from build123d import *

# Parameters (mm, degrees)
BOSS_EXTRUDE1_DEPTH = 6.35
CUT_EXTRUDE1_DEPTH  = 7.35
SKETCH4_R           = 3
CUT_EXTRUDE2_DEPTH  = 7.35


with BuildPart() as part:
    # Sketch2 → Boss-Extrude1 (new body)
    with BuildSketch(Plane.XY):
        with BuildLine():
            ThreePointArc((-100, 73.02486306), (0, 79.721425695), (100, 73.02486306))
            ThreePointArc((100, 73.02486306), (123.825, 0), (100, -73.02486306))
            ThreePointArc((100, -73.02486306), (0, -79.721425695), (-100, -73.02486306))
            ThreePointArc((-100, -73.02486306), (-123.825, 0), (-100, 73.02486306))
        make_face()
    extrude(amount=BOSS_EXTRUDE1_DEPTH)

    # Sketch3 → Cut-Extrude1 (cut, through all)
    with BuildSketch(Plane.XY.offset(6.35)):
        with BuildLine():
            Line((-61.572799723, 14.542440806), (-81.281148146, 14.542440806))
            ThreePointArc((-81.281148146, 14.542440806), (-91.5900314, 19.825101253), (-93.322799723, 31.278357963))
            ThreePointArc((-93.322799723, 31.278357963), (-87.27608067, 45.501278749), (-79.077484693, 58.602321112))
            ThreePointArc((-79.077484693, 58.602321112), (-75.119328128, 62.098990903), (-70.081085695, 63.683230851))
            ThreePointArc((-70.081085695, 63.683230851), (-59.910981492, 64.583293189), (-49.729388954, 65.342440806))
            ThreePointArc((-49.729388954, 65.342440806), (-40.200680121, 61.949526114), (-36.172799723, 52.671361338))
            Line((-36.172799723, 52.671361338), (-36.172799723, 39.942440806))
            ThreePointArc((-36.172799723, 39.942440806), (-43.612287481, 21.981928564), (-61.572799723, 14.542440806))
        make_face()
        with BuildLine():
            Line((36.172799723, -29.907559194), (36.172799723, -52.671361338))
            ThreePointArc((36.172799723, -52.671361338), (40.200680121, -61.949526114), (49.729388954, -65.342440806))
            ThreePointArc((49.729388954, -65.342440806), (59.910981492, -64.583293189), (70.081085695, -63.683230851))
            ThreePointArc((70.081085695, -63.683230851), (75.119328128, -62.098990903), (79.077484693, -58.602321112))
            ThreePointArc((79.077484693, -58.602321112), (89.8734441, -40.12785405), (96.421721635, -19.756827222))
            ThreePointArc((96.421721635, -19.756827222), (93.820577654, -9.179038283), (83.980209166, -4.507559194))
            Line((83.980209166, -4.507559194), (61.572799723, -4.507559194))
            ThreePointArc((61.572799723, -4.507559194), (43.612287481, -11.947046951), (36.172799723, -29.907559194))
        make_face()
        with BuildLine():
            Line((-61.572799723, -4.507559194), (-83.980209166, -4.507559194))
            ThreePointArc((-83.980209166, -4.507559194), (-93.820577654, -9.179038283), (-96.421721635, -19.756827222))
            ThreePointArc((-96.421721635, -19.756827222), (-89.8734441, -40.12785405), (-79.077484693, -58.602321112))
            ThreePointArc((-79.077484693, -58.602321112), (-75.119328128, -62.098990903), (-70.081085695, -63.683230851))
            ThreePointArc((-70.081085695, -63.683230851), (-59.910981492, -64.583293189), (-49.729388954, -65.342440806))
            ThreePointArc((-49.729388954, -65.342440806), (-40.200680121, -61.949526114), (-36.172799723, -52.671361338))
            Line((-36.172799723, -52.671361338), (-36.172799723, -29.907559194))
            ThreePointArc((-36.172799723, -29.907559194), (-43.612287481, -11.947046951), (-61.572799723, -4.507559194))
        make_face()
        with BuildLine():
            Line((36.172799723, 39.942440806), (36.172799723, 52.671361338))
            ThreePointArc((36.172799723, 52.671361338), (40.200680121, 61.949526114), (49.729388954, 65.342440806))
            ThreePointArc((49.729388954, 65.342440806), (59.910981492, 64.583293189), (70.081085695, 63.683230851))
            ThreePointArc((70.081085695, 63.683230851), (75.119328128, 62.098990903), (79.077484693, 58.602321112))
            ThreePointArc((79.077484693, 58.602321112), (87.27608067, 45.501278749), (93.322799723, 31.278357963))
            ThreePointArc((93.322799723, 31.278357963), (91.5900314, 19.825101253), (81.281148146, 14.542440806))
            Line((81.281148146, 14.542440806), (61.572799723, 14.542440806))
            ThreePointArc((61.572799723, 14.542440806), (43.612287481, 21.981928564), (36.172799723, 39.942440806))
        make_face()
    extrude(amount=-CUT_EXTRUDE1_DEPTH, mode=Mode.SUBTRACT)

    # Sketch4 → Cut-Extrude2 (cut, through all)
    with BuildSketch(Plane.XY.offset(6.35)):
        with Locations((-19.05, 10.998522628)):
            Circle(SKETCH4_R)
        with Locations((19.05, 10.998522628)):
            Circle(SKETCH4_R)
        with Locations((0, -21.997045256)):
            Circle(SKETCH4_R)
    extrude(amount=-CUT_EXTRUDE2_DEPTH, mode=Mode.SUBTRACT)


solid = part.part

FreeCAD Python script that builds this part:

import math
import FreeCAD as App
import Part
import Sketcher
from FreeCAD import Vector
Q = App.Units.Quantity

doc = App.newDocument("Part")
body = doc.addObject("PartDesign::Body", "Body")

# Sketch on XY plane
sketch1 = body.newObject("Sketcher::SketchObject", "Sketch")
sketch1.AttachmentSupport = (doc.getObject("XY_Plane"), [""])
sketch1.MapMode = "FlatFace"
sketch1.addGeometry(Part.ArcOfCircle(Part.Circle(Vector(0, -670, 0), Vector(0, 0, 1), 750), math.radians(82.34), math.radians(97.66)), False)
sketch1.addGeometry(Part.ArcOfCircle(Part.Circle(Vector(0, 0, 0), Vector(0, 0, 1), 124), math.radians(144), math.radians(216)), False)
sketch1.addGeometry(Part.ArcOfCircle(Part.Circle(Vector(0, 670, 0), Vector(0, 0, 1), 750), math.radians(-97.66), math.radians(-82.34)), False)
sketch1.addGeometry(Part.ArcOfCircle(Part.Circle(Vector(0, 0, 0), Vector(0, 0, 1), 124), math.radians(-36), math.radians(36)), False)
sketch1.addConstraint(Sketcher.Constraint("Coincident", 0, 2, 1, 1))
sketch1.addConstraint(Sketcher.Constraint("Coincident", 1, 2, 2, 1))
sketch1.addConstraint(Sketcher.Constraint("Coincident", 2, 2, 3, 1))
sketch1.addConstraint(Sketcher.Constraint("Coincident", 3, 2, 0, 1))
sketch1.addConstraint(Sketcher.Constraint("Coincident", 1, 3, -1, 1))
sketch1.addConstraint(Sketcher.Constraint("Coincident", 3, 3, -1, 1))
sketch1.addConstraint(Sketcher.Constraint("Equal", 0, 2))
sketch1.addConstraint(Sketcher.Constraint("Equal", 1, 3))
sketch1.addConstraint(Sketcher.Constraint("Symmetric", 0, 3, 2, 3, -1, 1))
sketch1.addConstraint(Sketcher.Constraint("PointOnObject", 0, 3, -2))
sketch1.addConstraint(Sketcher.Constraint("Radius", 1, Q("4.875 in")))
sketch1.addConstraint(Sketcher.Constraint("Radius", 0, Q("750 mm")))
sketch1.addConstraint(Sketcher.Constraint("DistanceX", 1, 2, -1, 1, Q("100 mm")))
pad1 = body.newObject("PartDesign::Pad", "Pad")
pad1.Profile = sketch1
pad1.Length = Q("0.25 in")

# Sketch on XY plane
sketch2 = body.newObject("Sketcher::SketchObject", "Sketch001")
sketch2.AttachmentSupport = (doc.getObject("XY_Plane"), [""])
sketch2.MapMode = "FlatFace"
sketch2.AttachmentOffset = App.Placement(Vector(0, 0, 0.25 * 25.4), App.Rotation())
sketch2.addGeometry(Part.LineSegment(Vector(-81, 15, 0), Vector(-62, 15, 0)), False)
sketch2.addGeometry(Part.ArcOfCircle(Part.Circle(Vector(-62, 40, 0), Vector(0, 0, 1), 25), math.radians(-90), math.radians(0)), False)
sketch2.addGeometry(Part.LineSegment(Vector(-36, 40, 0), Vector(-36, 53, 0)), False)
sketch2.addGeometry(Part.ArcOfCircle(Part.Circle(Vector(-49, 53, 0), Vector(0, 0, 1), 13), math.radians(0), math.radians(94)), False)
sketch2.addGeometry(Part.ArcOfCircle(Part.Circle(Vector(0, -670, 0), Vector(0, 0, 1), 737), math.radians(93.87), math.radians(95.45)), False)
sketch2.addGeometry(Part.ArcOfCircle(Part.Circle(Vector(-69, 51, 0), Vector(0, 0, 1), 13), math.radians(95), math.radians(143)), False)
sketch2.addGeometry(Part.ArcOfCircle(Part.Circle(Vector(0, 0, 0), Vector(0, 0, 1), 98), math.radians(143.46), math.radians(161.47)), False)
sketch2.addGeometry(Part.ArcOfCircle(Part.Circle(Vector(-81, 27, 0), Vector(0, 0, 1), 13), math.radians(161), math.radians(270)), False)
sketch2.addGeometry(Part.LineSegment(Vector(36, -30, 0), Vector(36, -53, 0)), False)
sketch2.addGeometry(Part.ArcOfCircle(Part.Circle(Vector(49, -53, 0), Vector(0, 0, 1), 13), math.radians(180), math.radians(274)), False)
sketch2.addGeometry(Part.ArcOfCircle(Part.Circle(Vector(0, 670, 0), Vector(0, 0, 1), 737), math.radians(-86.13), math.radians(-84.55)), False)
sketch2.addGeometry(Part.ArcOfCircle(Part.Circle(Vector(69, -51, 0), Vector(0, 0, 1), 13), math.radians(-85), math.radians(-37)), False)
sketch2.addGeometry(Part.ArcOfCircle(Part.Circle(Vector(0, 0, 0), Vector(0, 0, 1), 98), math.radians(-37), math.radians(-12)), False)
sketch2.addGeometry(Part.ArcOfCircle(Part.Circle(Vector(84, -17, 0), Vector(0, 0, 1), 13), math.radians(-12), math.radians(90)), False)
sketch2.addGeometry(Part.LineSegment(Vector(84, -5, 0), Vector(62, -5, 0)), False)
sketch2.addGeometry(Part.ArcOfCircle(Part.Circle(Vector(62, -30, 0), Vector(0, 0, 1), 25), math.radians(90), math.radians(180)), False)
sketch2.addGeometry(Part.LineSegment(Vector(-62, -5, 0), Vector(-84, -5, 0)), False)
sketch2.addGeometry(Part.ArcOfCircle(Part.Circle(Vector(-84, -17, 0), Vector(0, 0, 1), 13), math.radians(90), math.radians(192)), False)
sketch2.addGeometry(Part.ArcOfCircle(Part.Circle(Vector(0, 0, 0), Vector(0, 0, 1), 98), math.radians(-168), math.radians(-143)), False)
sketch2.addGeometry(Part.ArcOfCircle(Part.Circle(Vector(-69, -51, 0), Vector(0, 0, 1), 13), math.radians(-143), math.radians(-95)), False)
sketch2.addGeometry(Part.ArcOfCircle(Part.Circle(Vector(0, 670, 0), Vector(0, 0, 1), 737), math.radians(-95.45), math.radians(-93.87)), False)
sketch2.addGeometry(Part.ArcOfCircle(Part.Circle(Vector(-49, -53, 0), Vector(0, 0, 1), 13), math.radians(-94), math.radians(0)), False)
sketch2.addGeometry(Part.LineSegment(Vector(-36, -53, 0), Vector(-36, -30, 0)), False)
sketch2.addGeometry(Part.ArcOfCircle(Part.Circle(Vector(-62, -30, 0), Vector(0, 0, 1), 25), math.radians(0), math.radians(90)), False)
sketch2.addGeometry(Part.LineSegment(Vector(36, 53, 0), Vector(36, 40, 0)), False)
sketch2.addGeometry(Part.ArcOfCircle(Part.Circle(Vector(62, 40, 0), Vector(0, 0, 1), 25), math.radians(180), math.radians(270)), False)
sketch2.addGeometry(Part.LineSegment(Vector(62, 15, 0), Vector(81, 15, 0)), False)
sketch2.addGeometry(Part.ArcOfCircle(Part.Circle(Vector(81, 27, 0), Vector(0, 0, 1), 13), math.radians(-90), math.radians(19)), False)
sketch2.addGeometry(Part.ArcOfCircle(Part.Circle(Vector(0, 0, 0), Vector(0, 0, 1), 98), math.radians(18.53), math.radians(36.54)), False)
sketch2.addGeometry(Part.ArcOfCircle(Part.Circle(Vector(69, 51, 0), Vector(0, 0, 1), 13), math.radians(37), math.radians(85)), False)
sketch2.addGeometry(Part.ArcOfCircle(Part.Circle(Vector(0, -670, 0), Vector(0, 0, 1), 737), math.radians(84.55), math.radians(86.13)), False)
sketch2.addGeometry(Part.ArcOfCircle(Part.Circle(Vector(49, 53, 0), Vector(0, 0, 1), 13), math.radians(86), math.radians(180)), False)
sketch2.addConstraint(Sketcher.Constraint("Tangent", 0, 2, 1, 1))
sketch2.addConstraint(Sketcher.Constraint("Tangent", 1, 2, 2, 1))
sketch2.addConstraint(Sketcher.Constraint("Tangent", 2, 2, 3, 1))
sketch2.addConstraint(Sketcher.Constraint("Tangent", 3, 2, 4, 1))
sketch2.addConstraint(Sketcher.Constraint("Tangent", 4, 2, 5, 1))
sketch2.addConstraint(Sketcher.Constraint("Tangent", 5, 2, 6, 1))
sketch2.addConstraint(Sketcher.Constraint("Tangent", 6, 2, 7, 1))
sketch2.addConstraint(Sketcher.Constraint("Tangent", 7, 2, 0, 1))
sketch2.addConstraint(Sketcher.Constraint("Tangent", 8, 2, 9, 1))
sketch2.addConstraint(Sketcher.Constraint("Tangent", 9, 2, 10, 1))
sketch2.addConstraint(Sketcher.Constraint("Tangent", 10, 2, 11, 1))
sketch2.addConstraint(Sketcher.Constraint("Tangent", 11, 2, 12, 1))
sketch2.addConstraint(Sketcher.Constraint("Tangent", 12, 2, 13, 1))
sketch2.addConstraint(Sketcher.Constraint("Tangent", 13, 2, 14, 1))
sketch2.addConstraint(Sketcher.Constraint("Tangent", 14, 2, 15, 1))
sketch2.addConstraint(Sketcher.Constraint("Tangent", 15, 2, 8, 1))
sketch2.addConstraint(Sketcher.Constraint("Tangent", 16, 2, 17, 1))
sketch2.addConstraint(Sketcher.Constraint("Tangent", 17, 2, 18, 1))
sketch2.addConstraint(Sketcher.Constraint("Tangent", 18, 2, 19, 1))
sketch2.addConstraint(Sketcher.Constraint("Tangent", 19, 2, 20, 1))
sketch2.addConstraint(Sketcher.Constraint("Tangent", 20, 2, 21, 1))
sketch2.addConstraint(Sketcher.Constraint("Tangent", 21, 2, 22, 1))
sketch2.addConstraint(Sketcher.Constraint("Tangent", 22, 2, 23, 1))
sketch2.addConstraint(Sketcher.Constraint("Tangent", 23, 2, 16, 1))
sketch2.addConstraint(Sketcher.Constraint("Tangent", 24, 2, 25, 1))
sketch2.addConstraint(Sketcher.Constraint("Tangent", 25, 2, 26, 1))
sketch2.addConstraint(Sketcher.Constraint("Tangent", 26, 2, 27, 1))
sketch2.addConstraint(Sketcher.Constraint("Tangent", 27, 2, 28, 1))
sketch2.addConstraint(Sketcher.Constraint("Tangent", 28, 2, 29, 1))
sketch2.addConstraint(Sketcher.Constraint("Tangent", 29, 2, 30, 1))
sketch2.addConstraint(Sketcher.Constraint("Tangent", 30, 2, 31, 1))
sketch2.addConstraint(Sketcher.Constraint("Tangent", 31, 2, 24, 1))
sketch2.addConstraint(Sketcher.Constraint("Horizontal", 0))
sketch2.addConstraint(Sketcher.Constraint("Vertical", 2))
sketch2.addConstraint(Sketcher.Constraint("Vertical", 8))
sketch2.addConstraint(Sketcher.Constraint("Horizontal", 14))
sketch2.addConstraint(Sketcher.Constraint("Horizontal", 16))
sketch2.addConstraint(Sketcher.Constraint("Vertical", 22))
sketch2.addConstraint(Sketcher.Constraint("Vertical", 24))
sketch2.addConstraint(Sketcher.Constraint("Horizontal", 26))
sketch2.addConstraint(Sketcher.Constraint("Coincident", 6, 3, -1, 1))
sketch2.addConstraint(Sketcher.Constraint("Coincident", 12, 3, -1, 1))
sketch2.addConstraint(Sketcher.Constraint("Coincident", 18, 3, -1, 1))
sketch2.addConstraint(Sketcher.Constraint("Coincident", 28, 3, -1, 1))
sketch2.addConstraint(Sketcher.Constraint("Coincident", 20, 3, 10, 3))
sketch2.addConstraint(Sketcher.Constraint("Coincident", 30, 3, 4, 3))
sketch2.addConstraint(Sketcher.Constraint("Equal", 3, 5))
sketch2.addConstraint(Sketcher.Constraint("Equal", 5, 7))
sketch2.addConstraint(Sketcher.Constraint("Equal", 7, 9))
sketch2.addConstraint(Sketcher.Constraint("Equal", 4, 10))
sketch2.addConstraint(Sketcher.Constraint("Equal", 9, 11))
sketch2.addConstraint(Sketcher.Constraint("Equal", 6, 12))
sketch2.addConstraint(Sketcher.Constraint("Equal", 11, 13))
sketch2.addConstraint(Sketcher.Constraint("Equal", 1, 15))
sketch2.addConstraint(Sketcher.Constraint("Equal", 13, 17))
sketch2.addConstraint(Sketcher.Constraint("Equal", 12, 18))
sketch2.addConstraint(Sketcher.Constraint("Equal", 17, 19))
sketch2.addConstraint(Sketcher.Constraint("Equal", 10, 20))
sketch2.addConstraint(Sketcher.Constraint("Equal", 19, 21))
sketch2.addConstraint(Sketcher.Constraint("Equal", 15, 23))
sketch2.addConstraint(Sketcher.Constraint("Equal", 23, 25))
sketch2.addConstraint(Sketcher.Constraint("Equal", 21, 27))
sketch2.addConstraint(Sketcher.Constraint("Equal", 18, 28))
sketch2.addConstraint(Sketcher.Constraint("Equal", 27, 29))
sketch2.addConstraint(Sketcher.Constraint("Equal", 20, 30))
sketch2.addConstraint(Sketcher.Constraint("Equal", 29, 31))
sketch2.addConstraint(Sketcher.Constraint("Symmetric", 3, 3, 9, 3, -1, 1))
sketch2.addConstraint(Sketcher.Constraint("Symmetric", 21, 3, 31, 3, -1, 1))
sketch2.addConstraint(Sketcher.Constraint("Symmetric", 9, 3, 21, 3, -2))
sketch2.addConstraint(Sketcher.Constraint("Horizontal", 13, 3, 17, 3))
sketch2.addConstraint(Sketcher.Constraint("Horizontal", 1, 3, 25, 3))
sketch2.addConstraint(Sketcher.Constraint("Radius", 1, Q("1 in")))
sketch2.addConstraint(Sketcher.Constraint("Radius", 3, Q("0.5 in")))
sketch2.addConstraint(Sketcher.Constraint("Radius", 6, Q("3.875 in")))
sketch2.addConstraint(Sketcher.Constraint("DistanceY", 1, 3, 3, 2, Q("1 in")))
sketch2.addConstraint(Sketcher.Constraint("DistanceY", 17, 3, 7, 3, Q("1.75 in")))
sketch2.addConstraint(Sketcher.Constraint("DistanceX", 6, 2, 1, 3, Q("1.25 in")))
sketch2.addConstraint(Sketcher.Constraint("Radius", 4, Q("737.299995 mm")))
sketch2.addConstraint(Sketcher.Constraint("DistanceX", 0, 1, 0, 2, Q("19.708348 mm")))
pocket1 = body.newObject("PartDesign::Pocket", "Pocket")
pocket1.Profile = sketch2
pocket1.Type = "ThroughAll"

# Sketch on XY plane
sketch3 = body.newObject("Sketcher::SketchObject", "Sketch002")
sketch3.AttachmentSupport = (doc.getObject("XY_Plane"), [""])
sketch3.MapMode = "FlatFace"
sketch3.AttachmentOffset = App.Placement(Vector(0, 0, 0.25 * 25.4), App.Rotation())
sketch3.addGeometry(Part.Circle(Vector(-19.1, 11, 0), Vector(0, 0, 1), 3), False)
sketch3.addGeometry(Part.Circle(Vector(19.1, 11, 0), Vector(0, 0, 1), 3), False)
sketch3.addGeometry(Part.Circle(Vector(0, -22, 0), Vector(0, 0, 1), 3), False)
sketch3.addConstraint(Sketcher.Constraint("Equal", 0, 1))
sketch3.addConstraint(Sketcher.Constraint("Equal", 1, 2))
sketch3.addConstraint(Sketcher.Constraint("Symmetric", 0, 3, 1, 3, -2))
sketch3.addConstraint(Sketcher.Constraint("PointOnObject", 2, 3, -2))
sketch3.addConstraint(Sketcher.Constraint("DistanceX", 0, 3, 1, 3, Q("1.5 in")))
sketch3.addConstraint(Sketcher.Constraint("Diameter", 0, Q("6 mm")))
sketch3.addConstraint(Sketcher.Constraint("DistanceY", -1, 1, 0, 3, Q("10.998523 mm")))
sketch3.addConstraint(Sketcher.Constraint("DistanceY", 2, 3, -1, 1, Q("21.997045 mm")))
pocket2 = body.newObject("PartDesign::Pocket", "Pocket001")
pocket2.Profile = sketch3
pocket2.Type = "ThroughAll"

doc.recompute()
